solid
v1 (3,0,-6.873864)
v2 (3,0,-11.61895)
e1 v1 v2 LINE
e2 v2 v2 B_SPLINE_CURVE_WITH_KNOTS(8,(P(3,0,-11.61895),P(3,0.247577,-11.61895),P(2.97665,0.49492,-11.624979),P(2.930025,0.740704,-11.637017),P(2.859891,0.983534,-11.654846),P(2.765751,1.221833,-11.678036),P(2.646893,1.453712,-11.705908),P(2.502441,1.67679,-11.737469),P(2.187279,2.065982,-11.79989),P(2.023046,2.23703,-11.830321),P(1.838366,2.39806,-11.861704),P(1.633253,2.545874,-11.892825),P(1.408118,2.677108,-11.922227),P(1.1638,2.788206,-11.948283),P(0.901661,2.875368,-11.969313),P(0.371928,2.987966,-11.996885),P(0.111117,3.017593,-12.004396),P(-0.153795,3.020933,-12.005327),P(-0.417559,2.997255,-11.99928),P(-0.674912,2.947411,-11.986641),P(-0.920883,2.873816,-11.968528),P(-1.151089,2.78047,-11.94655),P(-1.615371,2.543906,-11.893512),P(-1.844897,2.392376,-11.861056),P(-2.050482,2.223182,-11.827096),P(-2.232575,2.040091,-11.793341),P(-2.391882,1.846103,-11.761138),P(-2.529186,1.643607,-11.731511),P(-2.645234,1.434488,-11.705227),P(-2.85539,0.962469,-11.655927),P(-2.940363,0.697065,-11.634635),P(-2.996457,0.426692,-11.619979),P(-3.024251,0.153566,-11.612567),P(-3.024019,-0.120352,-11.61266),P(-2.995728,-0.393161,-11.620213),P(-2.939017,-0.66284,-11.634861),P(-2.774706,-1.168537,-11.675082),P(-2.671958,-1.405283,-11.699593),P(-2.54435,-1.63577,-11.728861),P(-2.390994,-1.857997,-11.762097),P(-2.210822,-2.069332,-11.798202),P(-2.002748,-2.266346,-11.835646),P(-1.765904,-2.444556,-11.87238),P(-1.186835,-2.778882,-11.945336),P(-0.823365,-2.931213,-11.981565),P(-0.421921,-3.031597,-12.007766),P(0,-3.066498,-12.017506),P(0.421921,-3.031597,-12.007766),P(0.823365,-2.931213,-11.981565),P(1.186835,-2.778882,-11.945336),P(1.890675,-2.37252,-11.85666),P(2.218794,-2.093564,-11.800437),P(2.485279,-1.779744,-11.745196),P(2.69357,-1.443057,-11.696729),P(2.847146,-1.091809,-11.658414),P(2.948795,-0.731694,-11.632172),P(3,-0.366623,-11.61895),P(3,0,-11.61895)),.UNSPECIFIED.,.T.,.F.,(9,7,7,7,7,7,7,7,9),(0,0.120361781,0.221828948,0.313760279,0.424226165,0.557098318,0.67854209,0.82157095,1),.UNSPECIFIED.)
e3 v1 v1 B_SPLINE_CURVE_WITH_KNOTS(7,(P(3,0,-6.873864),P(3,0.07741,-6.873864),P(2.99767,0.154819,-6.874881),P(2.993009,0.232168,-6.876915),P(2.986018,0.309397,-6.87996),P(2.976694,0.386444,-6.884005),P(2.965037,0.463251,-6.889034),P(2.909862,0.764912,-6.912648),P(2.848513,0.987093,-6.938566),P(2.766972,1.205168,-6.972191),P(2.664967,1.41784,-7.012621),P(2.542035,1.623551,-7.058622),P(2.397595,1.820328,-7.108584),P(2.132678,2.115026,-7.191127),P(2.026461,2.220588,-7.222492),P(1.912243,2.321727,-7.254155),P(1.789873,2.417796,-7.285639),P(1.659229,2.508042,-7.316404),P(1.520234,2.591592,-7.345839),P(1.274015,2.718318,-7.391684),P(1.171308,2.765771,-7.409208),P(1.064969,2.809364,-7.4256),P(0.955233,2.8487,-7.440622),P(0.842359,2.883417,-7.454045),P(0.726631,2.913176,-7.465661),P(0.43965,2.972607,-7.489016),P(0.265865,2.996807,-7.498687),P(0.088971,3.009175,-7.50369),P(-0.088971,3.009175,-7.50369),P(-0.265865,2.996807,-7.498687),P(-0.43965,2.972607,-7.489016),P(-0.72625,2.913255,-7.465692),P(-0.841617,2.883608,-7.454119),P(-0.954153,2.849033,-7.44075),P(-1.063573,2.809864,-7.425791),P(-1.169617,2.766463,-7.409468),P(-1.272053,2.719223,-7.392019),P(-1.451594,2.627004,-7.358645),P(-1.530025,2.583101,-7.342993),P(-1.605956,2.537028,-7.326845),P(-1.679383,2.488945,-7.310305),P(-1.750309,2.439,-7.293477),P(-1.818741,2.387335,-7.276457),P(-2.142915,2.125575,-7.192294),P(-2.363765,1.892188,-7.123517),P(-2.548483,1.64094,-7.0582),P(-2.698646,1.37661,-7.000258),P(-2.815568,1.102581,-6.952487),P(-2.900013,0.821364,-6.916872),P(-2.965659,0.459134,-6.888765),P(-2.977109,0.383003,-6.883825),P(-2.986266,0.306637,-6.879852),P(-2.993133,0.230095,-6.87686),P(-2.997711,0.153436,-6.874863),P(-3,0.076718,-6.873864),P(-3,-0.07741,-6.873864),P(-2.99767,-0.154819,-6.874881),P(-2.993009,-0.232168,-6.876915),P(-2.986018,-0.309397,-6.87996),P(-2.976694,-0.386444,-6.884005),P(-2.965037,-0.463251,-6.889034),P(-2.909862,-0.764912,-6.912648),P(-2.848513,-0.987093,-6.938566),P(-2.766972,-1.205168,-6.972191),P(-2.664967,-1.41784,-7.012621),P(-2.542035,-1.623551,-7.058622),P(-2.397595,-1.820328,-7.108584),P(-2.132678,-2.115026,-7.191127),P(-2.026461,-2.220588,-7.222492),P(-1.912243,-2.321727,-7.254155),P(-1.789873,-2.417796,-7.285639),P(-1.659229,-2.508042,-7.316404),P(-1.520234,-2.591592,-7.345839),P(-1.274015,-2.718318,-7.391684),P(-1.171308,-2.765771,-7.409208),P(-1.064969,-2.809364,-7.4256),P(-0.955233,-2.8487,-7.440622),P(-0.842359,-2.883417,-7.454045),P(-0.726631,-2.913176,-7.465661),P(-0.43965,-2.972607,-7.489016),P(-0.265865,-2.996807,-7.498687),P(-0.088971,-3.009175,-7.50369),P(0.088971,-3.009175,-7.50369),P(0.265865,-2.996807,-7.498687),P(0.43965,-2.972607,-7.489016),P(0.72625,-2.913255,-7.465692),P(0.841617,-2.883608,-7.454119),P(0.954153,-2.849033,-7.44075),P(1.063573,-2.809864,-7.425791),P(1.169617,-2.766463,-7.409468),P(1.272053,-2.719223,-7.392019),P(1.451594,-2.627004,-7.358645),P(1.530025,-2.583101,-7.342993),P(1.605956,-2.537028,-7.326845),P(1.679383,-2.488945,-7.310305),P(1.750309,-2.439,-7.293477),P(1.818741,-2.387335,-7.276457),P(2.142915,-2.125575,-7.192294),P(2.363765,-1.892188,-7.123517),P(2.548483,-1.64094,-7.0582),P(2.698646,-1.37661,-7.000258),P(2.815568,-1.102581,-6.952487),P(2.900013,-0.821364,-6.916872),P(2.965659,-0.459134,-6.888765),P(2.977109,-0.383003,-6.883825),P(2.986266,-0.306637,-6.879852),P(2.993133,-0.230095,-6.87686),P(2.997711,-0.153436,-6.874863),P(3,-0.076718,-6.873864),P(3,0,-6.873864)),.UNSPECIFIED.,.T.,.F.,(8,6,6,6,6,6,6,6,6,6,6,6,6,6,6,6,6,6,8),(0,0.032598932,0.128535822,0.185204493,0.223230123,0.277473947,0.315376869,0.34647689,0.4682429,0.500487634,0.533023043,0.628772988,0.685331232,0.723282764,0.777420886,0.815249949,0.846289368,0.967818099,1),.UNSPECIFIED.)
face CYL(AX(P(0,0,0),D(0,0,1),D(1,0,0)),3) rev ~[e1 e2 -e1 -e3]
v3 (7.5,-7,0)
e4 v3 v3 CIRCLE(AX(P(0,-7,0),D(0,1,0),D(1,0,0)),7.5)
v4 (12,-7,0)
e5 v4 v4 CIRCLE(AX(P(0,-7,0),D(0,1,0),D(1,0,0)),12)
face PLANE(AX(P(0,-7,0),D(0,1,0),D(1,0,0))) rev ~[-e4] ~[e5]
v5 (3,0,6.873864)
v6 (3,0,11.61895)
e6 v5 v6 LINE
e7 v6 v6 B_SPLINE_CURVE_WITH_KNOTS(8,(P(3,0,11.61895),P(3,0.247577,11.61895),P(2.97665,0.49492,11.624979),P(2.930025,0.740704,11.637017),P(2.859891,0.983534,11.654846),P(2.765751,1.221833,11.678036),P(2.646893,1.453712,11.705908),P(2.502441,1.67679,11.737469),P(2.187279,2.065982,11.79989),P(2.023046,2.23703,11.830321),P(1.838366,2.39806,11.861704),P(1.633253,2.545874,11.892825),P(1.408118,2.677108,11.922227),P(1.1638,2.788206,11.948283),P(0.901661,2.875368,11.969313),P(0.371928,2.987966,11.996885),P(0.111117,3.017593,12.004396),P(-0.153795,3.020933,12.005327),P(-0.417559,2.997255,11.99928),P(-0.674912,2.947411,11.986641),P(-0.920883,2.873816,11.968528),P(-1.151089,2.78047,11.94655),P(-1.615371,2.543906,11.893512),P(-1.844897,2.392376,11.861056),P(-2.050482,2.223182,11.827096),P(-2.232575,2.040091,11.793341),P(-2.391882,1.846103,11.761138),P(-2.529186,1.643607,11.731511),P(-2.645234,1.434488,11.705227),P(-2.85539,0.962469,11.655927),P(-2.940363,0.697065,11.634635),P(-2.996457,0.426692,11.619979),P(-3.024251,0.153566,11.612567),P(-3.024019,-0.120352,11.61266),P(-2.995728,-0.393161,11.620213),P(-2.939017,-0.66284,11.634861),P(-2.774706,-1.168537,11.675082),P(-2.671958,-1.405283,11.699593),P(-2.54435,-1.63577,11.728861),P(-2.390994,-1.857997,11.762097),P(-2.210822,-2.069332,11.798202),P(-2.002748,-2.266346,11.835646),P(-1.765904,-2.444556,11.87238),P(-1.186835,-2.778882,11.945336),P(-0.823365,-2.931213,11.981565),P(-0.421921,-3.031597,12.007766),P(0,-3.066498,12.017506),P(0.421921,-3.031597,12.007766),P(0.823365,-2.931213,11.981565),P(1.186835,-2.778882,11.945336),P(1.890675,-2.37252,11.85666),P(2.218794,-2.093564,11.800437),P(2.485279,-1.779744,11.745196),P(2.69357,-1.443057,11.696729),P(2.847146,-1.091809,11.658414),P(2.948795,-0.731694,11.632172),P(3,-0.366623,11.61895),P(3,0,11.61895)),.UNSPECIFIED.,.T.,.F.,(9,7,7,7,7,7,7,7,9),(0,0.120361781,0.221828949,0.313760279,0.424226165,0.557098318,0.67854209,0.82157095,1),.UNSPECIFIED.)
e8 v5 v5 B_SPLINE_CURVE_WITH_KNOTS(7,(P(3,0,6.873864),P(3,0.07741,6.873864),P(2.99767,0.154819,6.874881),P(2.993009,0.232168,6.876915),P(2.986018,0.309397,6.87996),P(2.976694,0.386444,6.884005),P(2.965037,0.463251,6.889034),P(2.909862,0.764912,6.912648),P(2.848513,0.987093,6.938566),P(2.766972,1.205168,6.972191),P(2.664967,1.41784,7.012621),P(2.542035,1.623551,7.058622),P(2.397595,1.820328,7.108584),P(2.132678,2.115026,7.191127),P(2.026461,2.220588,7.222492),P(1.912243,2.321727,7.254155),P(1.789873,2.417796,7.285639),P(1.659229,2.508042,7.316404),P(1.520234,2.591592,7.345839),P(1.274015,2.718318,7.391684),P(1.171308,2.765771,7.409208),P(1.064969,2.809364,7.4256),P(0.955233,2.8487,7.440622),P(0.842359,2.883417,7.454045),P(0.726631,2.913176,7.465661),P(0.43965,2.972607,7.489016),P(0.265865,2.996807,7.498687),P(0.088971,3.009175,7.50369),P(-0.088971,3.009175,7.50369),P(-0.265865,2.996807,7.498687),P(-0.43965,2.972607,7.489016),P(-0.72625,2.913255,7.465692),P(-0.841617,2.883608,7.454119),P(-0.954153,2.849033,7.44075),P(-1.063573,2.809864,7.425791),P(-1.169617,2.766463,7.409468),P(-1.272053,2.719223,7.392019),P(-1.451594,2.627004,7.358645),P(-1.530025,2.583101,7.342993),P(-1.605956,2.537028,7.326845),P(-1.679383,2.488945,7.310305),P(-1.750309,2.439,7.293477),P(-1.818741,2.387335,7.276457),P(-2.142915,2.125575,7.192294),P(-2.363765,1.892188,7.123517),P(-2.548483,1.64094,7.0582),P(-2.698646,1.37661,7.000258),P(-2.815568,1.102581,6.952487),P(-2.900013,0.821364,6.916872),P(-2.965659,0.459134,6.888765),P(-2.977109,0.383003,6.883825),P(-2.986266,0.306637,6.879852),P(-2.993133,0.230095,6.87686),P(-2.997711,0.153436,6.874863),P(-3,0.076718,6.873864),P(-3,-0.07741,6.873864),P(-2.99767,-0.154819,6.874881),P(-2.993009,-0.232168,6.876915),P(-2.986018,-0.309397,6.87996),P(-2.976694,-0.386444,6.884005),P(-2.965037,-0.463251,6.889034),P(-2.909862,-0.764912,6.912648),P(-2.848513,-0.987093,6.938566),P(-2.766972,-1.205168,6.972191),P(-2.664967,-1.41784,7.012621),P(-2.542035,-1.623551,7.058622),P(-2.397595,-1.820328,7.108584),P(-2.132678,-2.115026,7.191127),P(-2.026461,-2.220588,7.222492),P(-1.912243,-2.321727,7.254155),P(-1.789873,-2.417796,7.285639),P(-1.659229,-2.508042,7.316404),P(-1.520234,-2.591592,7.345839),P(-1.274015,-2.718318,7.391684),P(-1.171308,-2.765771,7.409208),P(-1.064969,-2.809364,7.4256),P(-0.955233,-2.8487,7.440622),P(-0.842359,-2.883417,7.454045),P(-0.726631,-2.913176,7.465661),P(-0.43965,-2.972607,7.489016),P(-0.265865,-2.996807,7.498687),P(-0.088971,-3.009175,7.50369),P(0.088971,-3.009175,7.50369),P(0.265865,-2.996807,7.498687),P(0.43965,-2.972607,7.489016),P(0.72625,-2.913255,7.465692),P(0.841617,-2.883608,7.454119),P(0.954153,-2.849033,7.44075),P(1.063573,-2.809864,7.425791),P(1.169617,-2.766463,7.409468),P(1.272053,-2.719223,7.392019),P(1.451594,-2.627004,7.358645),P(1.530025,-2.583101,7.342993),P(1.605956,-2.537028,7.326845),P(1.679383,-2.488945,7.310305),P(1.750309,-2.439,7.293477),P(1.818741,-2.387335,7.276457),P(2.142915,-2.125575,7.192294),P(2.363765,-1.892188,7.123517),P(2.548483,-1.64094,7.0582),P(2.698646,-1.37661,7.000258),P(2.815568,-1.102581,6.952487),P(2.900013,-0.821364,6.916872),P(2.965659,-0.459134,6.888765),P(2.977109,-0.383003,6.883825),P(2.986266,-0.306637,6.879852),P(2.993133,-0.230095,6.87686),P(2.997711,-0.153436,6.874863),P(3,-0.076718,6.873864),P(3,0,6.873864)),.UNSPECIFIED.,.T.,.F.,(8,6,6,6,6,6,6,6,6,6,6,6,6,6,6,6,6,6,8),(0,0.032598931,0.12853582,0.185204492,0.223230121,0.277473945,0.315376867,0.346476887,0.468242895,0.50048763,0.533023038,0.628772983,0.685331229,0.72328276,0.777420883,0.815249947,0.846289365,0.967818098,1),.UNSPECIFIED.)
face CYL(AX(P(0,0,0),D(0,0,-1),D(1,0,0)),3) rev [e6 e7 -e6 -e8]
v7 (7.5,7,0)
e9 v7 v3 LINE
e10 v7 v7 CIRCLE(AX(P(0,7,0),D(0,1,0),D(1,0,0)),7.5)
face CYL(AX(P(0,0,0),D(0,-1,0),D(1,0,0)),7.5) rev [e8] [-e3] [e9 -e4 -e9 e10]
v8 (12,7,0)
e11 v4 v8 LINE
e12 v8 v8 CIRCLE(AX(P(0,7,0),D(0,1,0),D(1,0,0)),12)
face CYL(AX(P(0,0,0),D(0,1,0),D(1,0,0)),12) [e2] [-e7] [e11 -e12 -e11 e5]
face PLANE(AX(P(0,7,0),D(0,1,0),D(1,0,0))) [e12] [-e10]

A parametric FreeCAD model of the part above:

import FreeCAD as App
import Part
import Sketcher
Q = App.Units.Quantity

doc = App.newDocument("Part")
body = doc.addObject("PartDesign::Body", "Body")

# Sketch on XZ plane
sketch1 = doc.addObject("Sketcher::SketchObject", "Sketch")
body.addObject(sketch1)
sketch1.AttachmentSupport = (doc.XZ_Plane, [""])
sketch1.MapMode = "FlatFace"
sketch1.addGeometry(Part.Circle(App.Vector(0, 0, 0), App.Vector(0, 0, 1), 12), False)
sketch1.addGeometry(Part.Circle(App.Vector(0, 0, 0), App.Vector(0, 0, 1), 7.5), False)
sketch1.addConstraint(Sketcher.Constraint("Coincident", 0, 3, -1, 1))
sketch1.addConstraint(Sketcher.Constraint("Coincident", 1, 3, -1, 1))
sketch1.addConstraint(Sketcher.Constraint("Diameter", 0, Q("24 mm")))
sketch1.addConstraint(Sketcher.Constraint("Diameter", 1, Q("15 mm")))
pad1 = doc.addObject("PartDesign::Pad", "Pad")
body.addObject(pad1)
pad1.Profile = sketch1
pad1.Length = 14
pad1.Midplane = True

# Sketch on XY plane
sketch2 = doc.addObject("Sketcher::SketchObject", "Sketch001")
body.addObject(sketch2)
sketch2.AttachmentSupport = (doc.XY_Plane, [""])
sketch2.MapMode = "FlatFace"
sketch2.addGeometry(Part.Circle(App.Vector(0, 0, 0), App.Vector(0, 0, 1), 3), False)
sketch2.addConstraint(Sketcher.Constraint("Coincident", 0, 3, -1, 1))
sketch2.addConstraint(Sketcher.Constraint("Diameter", 0, Q("6 mm")))
pocket1 = doc.addObject("PartDesign::Pocket", "Pocket")
body.addObject(pocket1)
pocket1.Profile = sketch2
pocket1.Type = "ThroughAll"
pocket1.Midplane = True

doc.recompute()
